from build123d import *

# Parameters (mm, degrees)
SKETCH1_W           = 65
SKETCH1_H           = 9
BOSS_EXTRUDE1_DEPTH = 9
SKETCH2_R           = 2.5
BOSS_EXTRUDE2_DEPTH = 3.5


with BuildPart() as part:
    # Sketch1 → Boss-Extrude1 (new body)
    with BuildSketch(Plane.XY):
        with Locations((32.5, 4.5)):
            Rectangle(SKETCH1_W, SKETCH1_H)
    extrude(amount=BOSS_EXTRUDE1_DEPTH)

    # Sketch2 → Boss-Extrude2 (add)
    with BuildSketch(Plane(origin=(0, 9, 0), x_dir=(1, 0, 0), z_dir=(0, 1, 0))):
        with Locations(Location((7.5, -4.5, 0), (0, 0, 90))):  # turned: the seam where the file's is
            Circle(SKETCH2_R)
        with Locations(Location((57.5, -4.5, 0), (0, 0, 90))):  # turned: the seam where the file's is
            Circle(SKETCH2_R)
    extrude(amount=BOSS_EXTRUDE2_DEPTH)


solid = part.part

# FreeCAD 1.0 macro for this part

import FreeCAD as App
import Part
import Sketcher

V = App.Vector
Q = App.Units.Quantity


def add_polygon(sketch, points):
    """Adds a closed chain of lines whose ends are joined by coincident constraints."""
    first, n = sketch.GeometryCount, len(points)
    for a, b in zip(points, points[1:] + points[:1]):
        sketch.addGeometry(Part.LineSegment(App.Vector(*a, 0), App.Vector(*b, 0)), False)
    for i in range(n):
        sketch.addConstraint(Sketcher.Constraint("Coincident", first + i, 2, first + (i + 1) % n, 1))

doc = App.newDocument("Part")
params = doc.addObject("Spreadsheet::Sheet", "Params")
for row, (alias, value) in enumerate([
    ("sketch1_width", "65 mm"),
    ("sketch1_height", "9 mm"),
    ("pad1_length", "9 mm"),
    ("sketch2_diameter", "5 mm"),
    ("pad2_length", "3.5 mm"),
], start=1):
    params.set(f"A{row}", alias)
    params.set(f"B{row}", "=" + value)
    params.setAlias(f"B{row}", alias)

body = doc.addObject("PartDesign::Body", "Body")

sketch1 = body.newObject("Sketcher::SketchObject", "Sketch")
sketch1.AttachmentSupport = (doc.getObject("XY_Plane"), [""])
sketch1.MapMode = "FlatFace"
add_polygon(sketch1, [(0, 9), (0, 0), (65, 0), (65, 9)])
sketch1.addConstraint(Sketcher.Constraint("Vertical", 0))
sketch1.addConstraint(Sketcher.Constraint("Horizontal", 1))
sketch1.addConstraint(Sketcher.Constraint("Vertical", 2))
sketch1.addConstraint(Sketcher.Constraint("Horizontal", 3))
sketch1.addConstraint(Sketcher.Constraint("Coincident", 0, 2, -1, 1))
sketch1.addConstraint(Sketcher.Constraint("DistanceX", 1, 1, 1, 2, Q("65 mm")))
sketch1.addConstraint(Sketcher.Constraint("DistanceY", 0, 2, 0, 1, Q("9 mm")))
sketch1.setExpression("Constraints[9]", "Params.sketch1_width")
sketch1.setExpression("Constraints[10]", "Params.sketch1_height")
pad1 = body.newObject("PartDesign::Pad", "Pad")
pad1.Profile = sketch1
pad1.setExpression("Length", "Params.pad1_length")

sketch2 = body.newObject("Sketcher::SketchObject", "Sketch001")
sketch2.AttachmentSupport = (doc.getObject("XZ_Plane"), [""])
sketch2.MapMode = "FlatFace"
sketch2.AttachmentOffset = App.Placement(V(0, 0, -9), App.Rotation())
sketch2.addGeometry(Part.Circle(V(7.5, 4.5, 0), V(0, 0, 1), 2.5), False)
sketch2.addGeometry(Part.Circle(V(57.5, 4.5, 0), V(0, 0, 1), 2.5), False)
sketch2.addConstraint(Sketcher.Constraint("Equal", 0, 1))
sketch2.addConstraint(Sketcher.Constraint("Horizontal", 0, 3, 1, 3))
sketch2.addConstraint(Sketcher.Constraint("Diameter", 0, Q("5 mm")))
sketch2.addConstraint(Sketcher.Constraint("DistanceX", 0, 3, 1, 3, Q("50 mm")))
sketch2.addConstraint(Sketcher.Constraint("DistanceX", -1, 1, 0, 3, Q("7.5 mm")))
sketch2.addConstraint(Sketcher.Constraint("DistanceY", -1, 1, 0, 3, Q("4.5 mm")))
sketch2.setExpression("Constraints[2]", "Params.sketch2_diameter")
pad2 = body.newObject("PartDesign::Pad", "Pad001")
pad2.Profile = sketch2
pad2.setExpression("Length", "Params.pad2_length")
pad2.Reversed = True

doc.recompute()
